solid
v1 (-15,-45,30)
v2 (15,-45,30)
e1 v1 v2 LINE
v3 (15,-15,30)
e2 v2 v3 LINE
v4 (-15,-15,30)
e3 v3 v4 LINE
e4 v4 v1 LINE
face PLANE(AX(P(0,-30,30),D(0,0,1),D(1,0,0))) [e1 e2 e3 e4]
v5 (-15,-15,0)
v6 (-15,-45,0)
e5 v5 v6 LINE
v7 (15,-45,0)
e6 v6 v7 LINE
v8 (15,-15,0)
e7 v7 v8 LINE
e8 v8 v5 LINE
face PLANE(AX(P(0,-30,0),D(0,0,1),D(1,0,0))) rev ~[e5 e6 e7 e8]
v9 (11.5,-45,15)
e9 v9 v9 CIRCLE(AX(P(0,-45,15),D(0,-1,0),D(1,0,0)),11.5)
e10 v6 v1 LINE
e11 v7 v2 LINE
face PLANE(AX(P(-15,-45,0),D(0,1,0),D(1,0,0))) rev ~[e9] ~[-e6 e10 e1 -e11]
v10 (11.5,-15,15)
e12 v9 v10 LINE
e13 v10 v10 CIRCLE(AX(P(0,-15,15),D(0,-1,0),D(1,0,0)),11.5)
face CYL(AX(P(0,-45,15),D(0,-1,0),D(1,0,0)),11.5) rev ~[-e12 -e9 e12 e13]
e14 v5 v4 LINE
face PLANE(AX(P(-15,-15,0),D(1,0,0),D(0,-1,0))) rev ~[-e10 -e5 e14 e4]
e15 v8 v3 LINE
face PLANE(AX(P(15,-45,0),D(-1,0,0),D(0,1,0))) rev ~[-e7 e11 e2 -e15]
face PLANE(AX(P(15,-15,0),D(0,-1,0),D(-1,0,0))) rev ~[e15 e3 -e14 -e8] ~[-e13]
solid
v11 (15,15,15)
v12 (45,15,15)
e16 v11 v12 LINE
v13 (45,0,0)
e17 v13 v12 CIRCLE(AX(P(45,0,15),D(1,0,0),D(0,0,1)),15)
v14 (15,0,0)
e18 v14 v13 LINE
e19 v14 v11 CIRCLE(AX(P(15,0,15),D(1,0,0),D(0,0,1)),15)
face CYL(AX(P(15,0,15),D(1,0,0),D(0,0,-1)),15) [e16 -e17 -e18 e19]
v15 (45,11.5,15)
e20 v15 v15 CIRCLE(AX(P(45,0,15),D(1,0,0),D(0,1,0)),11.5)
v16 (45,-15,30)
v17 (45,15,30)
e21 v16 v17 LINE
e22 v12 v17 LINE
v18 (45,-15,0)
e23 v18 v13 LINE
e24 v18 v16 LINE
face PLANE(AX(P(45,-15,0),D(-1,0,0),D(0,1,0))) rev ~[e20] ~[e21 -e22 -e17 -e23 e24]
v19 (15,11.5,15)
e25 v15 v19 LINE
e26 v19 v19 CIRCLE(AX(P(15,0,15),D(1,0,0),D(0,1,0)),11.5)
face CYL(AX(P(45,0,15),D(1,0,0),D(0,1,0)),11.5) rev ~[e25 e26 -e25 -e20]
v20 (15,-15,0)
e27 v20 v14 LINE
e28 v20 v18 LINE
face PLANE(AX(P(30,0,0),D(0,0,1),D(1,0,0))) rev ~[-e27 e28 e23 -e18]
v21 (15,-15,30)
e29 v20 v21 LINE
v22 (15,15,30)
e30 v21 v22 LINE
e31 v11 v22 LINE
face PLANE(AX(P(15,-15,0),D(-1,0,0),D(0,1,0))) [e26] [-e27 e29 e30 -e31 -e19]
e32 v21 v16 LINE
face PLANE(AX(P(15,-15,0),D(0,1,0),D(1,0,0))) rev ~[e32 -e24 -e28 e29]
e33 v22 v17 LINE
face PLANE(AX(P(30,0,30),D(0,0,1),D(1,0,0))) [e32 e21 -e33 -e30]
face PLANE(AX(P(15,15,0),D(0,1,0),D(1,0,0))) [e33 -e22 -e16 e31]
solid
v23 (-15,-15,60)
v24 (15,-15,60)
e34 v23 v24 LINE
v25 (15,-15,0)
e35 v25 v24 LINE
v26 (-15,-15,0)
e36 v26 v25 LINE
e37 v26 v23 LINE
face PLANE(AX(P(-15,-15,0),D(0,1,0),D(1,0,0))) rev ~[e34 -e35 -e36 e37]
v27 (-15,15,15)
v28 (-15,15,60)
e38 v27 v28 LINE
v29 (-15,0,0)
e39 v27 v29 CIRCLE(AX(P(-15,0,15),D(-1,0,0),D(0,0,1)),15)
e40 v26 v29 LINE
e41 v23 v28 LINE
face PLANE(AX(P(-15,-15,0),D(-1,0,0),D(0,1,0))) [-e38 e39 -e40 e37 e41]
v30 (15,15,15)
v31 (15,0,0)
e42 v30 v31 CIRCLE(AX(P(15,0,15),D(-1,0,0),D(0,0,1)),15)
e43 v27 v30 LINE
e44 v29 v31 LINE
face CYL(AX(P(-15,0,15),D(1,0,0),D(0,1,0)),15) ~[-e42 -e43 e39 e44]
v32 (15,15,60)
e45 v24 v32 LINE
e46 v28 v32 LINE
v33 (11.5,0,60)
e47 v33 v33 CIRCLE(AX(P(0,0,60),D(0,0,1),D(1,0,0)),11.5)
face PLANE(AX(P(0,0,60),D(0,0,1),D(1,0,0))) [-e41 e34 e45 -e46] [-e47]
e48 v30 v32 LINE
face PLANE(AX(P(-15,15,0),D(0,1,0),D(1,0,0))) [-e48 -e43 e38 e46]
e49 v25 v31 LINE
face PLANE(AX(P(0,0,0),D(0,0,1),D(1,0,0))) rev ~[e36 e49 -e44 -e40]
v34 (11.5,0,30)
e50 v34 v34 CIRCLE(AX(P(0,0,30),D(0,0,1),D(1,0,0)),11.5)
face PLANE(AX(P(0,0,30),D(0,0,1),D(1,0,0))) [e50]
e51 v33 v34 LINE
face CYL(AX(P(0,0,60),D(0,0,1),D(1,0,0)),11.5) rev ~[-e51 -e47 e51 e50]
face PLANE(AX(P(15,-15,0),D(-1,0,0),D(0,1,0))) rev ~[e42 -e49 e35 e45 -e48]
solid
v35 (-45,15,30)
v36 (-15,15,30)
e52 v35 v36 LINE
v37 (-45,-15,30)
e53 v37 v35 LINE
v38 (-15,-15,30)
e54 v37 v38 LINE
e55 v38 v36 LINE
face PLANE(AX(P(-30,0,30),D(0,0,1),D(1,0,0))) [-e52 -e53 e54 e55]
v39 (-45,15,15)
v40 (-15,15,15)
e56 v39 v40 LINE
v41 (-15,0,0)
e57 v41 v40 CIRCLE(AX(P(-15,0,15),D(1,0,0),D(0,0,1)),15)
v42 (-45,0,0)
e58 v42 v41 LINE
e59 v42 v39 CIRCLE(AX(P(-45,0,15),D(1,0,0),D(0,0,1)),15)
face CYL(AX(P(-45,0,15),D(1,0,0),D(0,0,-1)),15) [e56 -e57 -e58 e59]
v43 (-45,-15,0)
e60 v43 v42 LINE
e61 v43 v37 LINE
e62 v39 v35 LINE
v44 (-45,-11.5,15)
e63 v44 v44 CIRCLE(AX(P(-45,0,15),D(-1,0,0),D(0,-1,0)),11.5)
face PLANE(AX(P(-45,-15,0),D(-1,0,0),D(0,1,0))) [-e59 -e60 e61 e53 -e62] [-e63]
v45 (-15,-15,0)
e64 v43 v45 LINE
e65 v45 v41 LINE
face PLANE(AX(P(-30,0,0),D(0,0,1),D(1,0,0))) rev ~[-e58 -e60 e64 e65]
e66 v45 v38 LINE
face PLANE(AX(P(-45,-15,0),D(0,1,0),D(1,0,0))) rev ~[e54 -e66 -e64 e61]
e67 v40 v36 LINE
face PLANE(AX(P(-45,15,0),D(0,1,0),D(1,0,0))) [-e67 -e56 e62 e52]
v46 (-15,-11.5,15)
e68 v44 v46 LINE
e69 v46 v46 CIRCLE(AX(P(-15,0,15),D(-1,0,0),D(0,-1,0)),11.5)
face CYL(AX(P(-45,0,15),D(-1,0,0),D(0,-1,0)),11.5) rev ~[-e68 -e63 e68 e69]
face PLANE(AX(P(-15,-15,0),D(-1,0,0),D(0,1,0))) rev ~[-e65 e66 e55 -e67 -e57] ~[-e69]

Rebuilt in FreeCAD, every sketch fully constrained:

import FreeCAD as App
import Part
import Sketcher


def edges_at(feature, points):
    """Names of the edges that pass closest to the given points."""
    edges = feature.Shape.Edges
    near = lambda p: min(range(len(edges)), key=lambda i: edges[i].distToShape(Part.Vertex(*p))[0])
    return sorted({f"Edge{near(p) + 1}" for p in points})


def add_polygon(sketch, points):
    """Adds a closed chain of lines whose ends are joined by coincident constraints."""
    first, n = sketch.GeometryCount, len(points)
    for a, b in zip(points, points[1:] + points[:1]):
        sketch.addGeometry(Part.LineSegment(App.Vector(*a, 0), App.Vector(*b, 0)), False)
    for i in range(n):
        sketch.addConstraint(Sketcher.Constraint("Coincident", first + i, 2, first + (i + 1) % n, 1))

doc = App.newDocument("Part")
body = doc.addObject("PartDesign::Body", "Body")
body.AllowCompound = True

# Sketch on XY plane
sketch1 = body.newObject("Sketcher::SketchObject", "Sketch")
sketch1.AttachmentSupport = (doc.getObject("XY_Plane"), [""])
sketch1.MapMode = "FlatFace"
add_polygon(sketch1, [(-45, 15), (-45, -15), (-15, -15), (-15, 15)])  # lines 0-3
add_polygon(sketch1, [(15, -45), (15, -15), (-15, -15), (-15, -45)])  # lines 4-7
add_polygon(sketch1, [(15, 15), (15, -15), (45, -15), (45, 15)])  # lines 8-11
sketch1.addConstraint([
    Sketcher.Constraint("Vertical", 0),
    Sketcher.Constraint("Horizontal", 1),
    Sketcher.Constraint("Vertical", 2),
    Sketcher.Constraint("Horizontal", 3),
    Sketcher.Constraint("Vertical", 4),
    Sketcher.Constraint("Horizontal", 5),
    Sketcher.Constraint("Vertical", 6),
    Sketcher.Constraint("Horizontal", 7),
    Sketcher.Constraint("Vertical", 8),
    Sketcher.Constraint("Horizontal", 9),
    Sketcher.Constraint("Vertical", 10),
    Sketcher.Constraint("Horizontal", 11),
    Sketcher.Constraint("Coincident", 5, 2, 1, 2),
    Sketcher.Constraint("Coincident", 8, 2, 4, 2),
    Sketcher.Constraint("Symmetric", 2, 2, 4, 2, -1, 1),
    Sketcher.Constraint("Symmetric", 0, 2, 10, 2, -1, 1),
    Sketcher.Constraint("Equal", 3, 5),
    Sketcher.Constraint("Equal", 11, 0),
    Sketcher.Constraint("Equal", 2, 4),
    Sketcher.Constraint("DistanceX", 1, 1, 1, 2, 30.0),
])
pad1 = body.newObject("PartDesign::Pad", "Pad")
pad1.Profile = sketch1
pad1.Length = 30

# Sketch on YZ plane
sketch2 = body.newObject("Sketcher::SketchObject", "Sketch001")
sketch2.AttachmentSupport = (doc.getObject("YZ_Plane"), [""])
sketch2.MapMode = "FlatFace"
sketch2.AttachmentOffset = App.Placement(App.Vector(0, 0, -45), App.Rotation())
sketch2.addGeometry(Part.Circle(App.Vector(0, 15, 0), App.Vector(0, 0, 1), 11.5), False)
sketch2.addConstraint([
    Sketcher.Constraint("PointOnObject", 0, 3, -2),
    Sketcher.Constraint("Diameter", 0, 23.0),
    Sketcher.Constraint("DistanceY", -1, 1, 0, 3, 15.0),
])
pocket1 = body.newObject("PartDesign::Pocket", "Pocket")
pocket1.Profile = sketch2
pocket1.Length = 30
pocket1.Reversed = True

# Sketch on XZ plane
sketch3 = body.newObject("Sketcher::SketchObject", "Sketch002")
sketch3.AttachmentSupport = (doc.getObject("XZ_Plane"), [""])
sketch3.MapMode = "FlatFace"
sketch3.AttachmentOffset = App.Placement(App.Vector(0, 0, 45), App.Rotation())
sketch3.addGeometry(Part.Circle(App.Vector(0, 15, 0), App.Vector(0, 0, 1), 11.5), False)
sketch3.addConstraint([
    Sketcher.Constraint("PointOnObject", 0, 3, -2),
    Sketcher.Constraint("Diameter", 0, 23.0),
    Sketcher.Constraint("DistanceY", -1, 1, 0, 3, 15.0),
])
pocket2 = body.newObject("PartDesign::Pocket", "Pocket001")
pocket2.Profile = sketch3
pocket2.Length = 30

# Sketch on YZ plane
sketch4 = body.newObject("Sketcher::SketchObject", "Sketch003")
sketch4.AttachmentSupport = (doc.getObject("YZ_Plane"), [""])
sketch4.MapMode = "FlatFace"
sketch4.AttachmentOffset = App.Placement(App.Vector(0, 0, 45), App.Rotation())
sketch4.addGeometry(Part.Circle(App.Vector(0, 15, 0), App.Vector(0, 0, 1), 11.5), False)
sketch4.addConstraint([
    Sketcher.Constraint("PointOnObject", 0, 3, -2),
    Sketcher.Constraint("Diameter", 0, 23.0),
    Sketcher.Constraint("DistanceY", -1, 1, 0, 3, 15.0),
])
pocket3 = body.newObject("PartDesign::Pocket", "Pocket002")
pocket3.Profile = sketch4
pocket3.Length = 30
doc.recompute()

fillet = body.newObject("PartDesign::Fillet", "Fillet")
fillet.Base = (pocket3, edges_at(pocket3, [(-30, 15, 0), (30, 15, 0)]))
fillet.Radius = 15
body2 = doc.addObject("PartDesign::Body", "Body001")

# Sketch on XY plane
sketch5 = body2.newObject("Sketcher::SketchObject", "Sketch004")
sketch5.AttachmentSupport = (doc.getObject("XY_Plane001"), [""])
sketch5.MapMode = "FlatFace"
add_polygon(sketch5, [(-15, 15), (-15, -15), (15, -15), (15, 15)])  # lines 0-3
sketch5.addConstraint([
    Sketcher.Constraint("Vertical", 0),
    Sketcher.Constraint("Horizontal", 1),
    Sketcher.Constraint("Vertical", 2),
    Sketcher.Constraint("Horizontal", 3),
    Sketcher.Constraint("Symmetric", 0, 2, 2, 2, -1, 1),
    Sketcher.Constraint("Equal", 3, 0),
    Sketcher.Constraint("DistanceX", 1, 1, 1, 2, 30.0),
])
pad2 = body2.newObject("PartDesign::Pad", "Pad001")
pad2.Profile = sketch5
pad2.Length = 60

# Sketch on XY plane
sketch6 = body2.newObject("Sketcher::SketchObject", "Sketch005")
sketch6.AttachmentSupport = (doc.getObject("XY_Plane001"), [""])
sketch6.MapMode = "FlatFace"
sketch6.AttachmentOffset = App.Placement(App.Vector(0, 0, 60), App.Rotation())
sketch6.addGeometry(Part.Circle(App.Vector(0, 0, 0), App.Vector(0, 0, 1), 11.5), False)
sketch6.addConstraint([
    Sketcher.Constraint("Coincident", 0, 3, -1, 1),
    Sketcher.Constraint("Diameter", 0, 23.0),
])
pocket4 = body2.newObject("PartDesign::Pocket", "Pocket003")
pocket4.Profile = sketch6
pocket4.Length = 30
doc.recompute()

fillet2 = body2.newObject("PartDesign::Fillet", "Fillet001")
fillet2.Base = (pocket4, edges_at(pocket4, [(0, 15, 0)]))
fillet2.Radius = 15

doc.recompute()
